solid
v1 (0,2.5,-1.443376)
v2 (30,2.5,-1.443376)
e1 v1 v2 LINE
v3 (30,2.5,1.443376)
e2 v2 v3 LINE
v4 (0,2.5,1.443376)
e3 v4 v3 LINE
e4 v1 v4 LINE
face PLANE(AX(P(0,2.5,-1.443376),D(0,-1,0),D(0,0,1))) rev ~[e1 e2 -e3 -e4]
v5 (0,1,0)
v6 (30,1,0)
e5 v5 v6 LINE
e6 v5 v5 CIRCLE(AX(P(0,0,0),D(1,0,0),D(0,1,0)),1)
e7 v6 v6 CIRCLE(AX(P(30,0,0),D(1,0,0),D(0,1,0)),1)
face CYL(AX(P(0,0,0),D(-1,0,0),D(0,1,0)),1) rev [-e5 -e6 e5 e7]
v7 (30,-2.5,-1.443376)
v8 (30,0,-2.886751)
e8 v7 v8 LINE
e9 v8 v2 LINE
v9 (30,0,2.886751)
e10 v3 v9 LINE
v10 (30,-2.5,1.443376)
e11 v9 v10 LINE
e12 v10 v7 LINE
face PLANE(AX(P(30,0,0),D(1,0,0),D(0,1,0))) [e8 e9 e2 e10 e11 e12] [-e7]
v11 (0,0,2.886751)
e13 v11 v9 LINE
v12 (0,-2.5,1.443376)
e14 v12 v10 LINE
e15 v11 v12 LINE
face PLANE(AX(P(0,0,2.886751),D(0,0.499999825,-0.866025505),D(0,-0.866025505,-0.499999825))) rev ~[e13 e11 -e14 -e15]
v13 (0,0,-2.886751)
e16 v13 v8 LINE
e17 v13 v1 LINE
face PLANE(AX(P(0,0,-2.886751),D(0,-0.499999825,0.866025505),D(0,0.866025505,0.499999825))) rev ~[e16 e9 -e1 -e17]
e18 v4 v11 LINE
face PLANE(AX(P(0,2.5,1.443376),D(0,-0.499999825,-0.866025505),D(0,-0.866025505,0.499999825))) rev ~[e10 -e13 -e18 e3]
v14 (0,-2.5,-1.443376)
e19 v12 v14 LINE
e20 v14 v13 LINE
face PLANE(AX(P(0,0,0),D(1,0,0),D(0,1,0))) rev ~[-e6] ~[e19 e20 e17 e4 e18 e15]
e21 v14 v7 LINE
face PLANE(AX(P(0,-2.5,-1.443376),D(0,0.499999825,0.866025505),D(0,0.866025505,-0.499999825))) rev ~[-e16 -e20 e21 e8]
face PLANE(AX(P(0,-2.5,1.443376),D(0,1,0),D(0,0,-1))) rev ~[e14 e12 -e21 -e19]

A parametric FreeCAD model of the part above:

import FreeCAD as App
import Part
import Sketcher

V = App.Vector
Q = App.Units.Quantity


def add_polygon(sketch, points):
    """Adds a closed chain of lines whose ends are joined by coincident constraints."""
    first, n = sketch.GeometryCount, len(points)
    for a, b in zip(points, points[1:] + points[:1]):
        sketch.addGeometry(Part.LineSegment(App.Vector(*a, 0), App.Vector(*b, 0)), False)
    for i in range(n):
        sketch.addConstraint(Sketcher.Constraint("Coincident", first + i, 2, first + (i + 1) % n, 1))

doc = App.newDocument("Part")
params = doc.addObject("Spreadsheet::Sheet", "Params")
for row, (alias, value) in enumerate([
    ("sketch1_diameter", "2 mm"),
    ("pad1_length", "30 mm"),
], start=1):
    params.set(f"A{row}", alias)
    params.set(f"B{row}", "=" + value)
    params.setAlias(f"B{row}", alias)

body = doc.addObject("PartDesign::Body", "Body")

sketch1 = body.newObject("Sketcher::SketchObject", "Sketch")
sketch1.AttachmentSupport = (doc.getObject("YZ_Plane"), [""])
sketch1.MapMode = "FlatFace"
add_polygon(sketch1, [(2.5, -1.443376), (2.5, 1.443376), (0, 2.886751), (-2.5, 1.443376), (-2.5, -1.443376), (0, -2.886751)])
sketch1.addGeometry(Part.Circle(V(0, 0, 0), V(0, 0, 1), 1), False)
sketch1.addConstraint([
    Sketcher.Constraint("Vertical", 0),
    Sketcher.Constraint("Vertical", 3),
    Sketcher.Constraint("Coincident", 6, 3, -1, 1),
    Sketcher.Constraint("Symmetric", 0, 2, 3, 2, -1, 1),
    Sketcher.Constraint("Symmetric", 1, 2, 4, 2, -1, 1),
    Sketcher.Constraint("PointOnObject", 1, 2, -2),
    Sketcher.Constraint("Parallel", 2, 5),
    Sketcher.Constraint("Horizontal", 0, 2, 2, 2),
    Sketcher.Constraint("Diameter", 6, Q("2 mm")),
    Sketcher.Constraint("Angle", 1, Q("150.000012 deg")),
    Sketcher.Constraint("DistanceX", 2, 2, 0, 2, Q("5 mm")),
    Sketcher.Constraint("DistanceY", 0, 1, 0, 2, Q("2.886752 mm")),
])
sketch1.setExpression("Constraints[14]", "Params.sketch1_diameter")
pad1 = body.newObject("PartDesign::Pad", "Pad")
pad1.Profile = sketch1
pad1.setExpression("Length", "Params.pad1_length")

doc.recompute()
